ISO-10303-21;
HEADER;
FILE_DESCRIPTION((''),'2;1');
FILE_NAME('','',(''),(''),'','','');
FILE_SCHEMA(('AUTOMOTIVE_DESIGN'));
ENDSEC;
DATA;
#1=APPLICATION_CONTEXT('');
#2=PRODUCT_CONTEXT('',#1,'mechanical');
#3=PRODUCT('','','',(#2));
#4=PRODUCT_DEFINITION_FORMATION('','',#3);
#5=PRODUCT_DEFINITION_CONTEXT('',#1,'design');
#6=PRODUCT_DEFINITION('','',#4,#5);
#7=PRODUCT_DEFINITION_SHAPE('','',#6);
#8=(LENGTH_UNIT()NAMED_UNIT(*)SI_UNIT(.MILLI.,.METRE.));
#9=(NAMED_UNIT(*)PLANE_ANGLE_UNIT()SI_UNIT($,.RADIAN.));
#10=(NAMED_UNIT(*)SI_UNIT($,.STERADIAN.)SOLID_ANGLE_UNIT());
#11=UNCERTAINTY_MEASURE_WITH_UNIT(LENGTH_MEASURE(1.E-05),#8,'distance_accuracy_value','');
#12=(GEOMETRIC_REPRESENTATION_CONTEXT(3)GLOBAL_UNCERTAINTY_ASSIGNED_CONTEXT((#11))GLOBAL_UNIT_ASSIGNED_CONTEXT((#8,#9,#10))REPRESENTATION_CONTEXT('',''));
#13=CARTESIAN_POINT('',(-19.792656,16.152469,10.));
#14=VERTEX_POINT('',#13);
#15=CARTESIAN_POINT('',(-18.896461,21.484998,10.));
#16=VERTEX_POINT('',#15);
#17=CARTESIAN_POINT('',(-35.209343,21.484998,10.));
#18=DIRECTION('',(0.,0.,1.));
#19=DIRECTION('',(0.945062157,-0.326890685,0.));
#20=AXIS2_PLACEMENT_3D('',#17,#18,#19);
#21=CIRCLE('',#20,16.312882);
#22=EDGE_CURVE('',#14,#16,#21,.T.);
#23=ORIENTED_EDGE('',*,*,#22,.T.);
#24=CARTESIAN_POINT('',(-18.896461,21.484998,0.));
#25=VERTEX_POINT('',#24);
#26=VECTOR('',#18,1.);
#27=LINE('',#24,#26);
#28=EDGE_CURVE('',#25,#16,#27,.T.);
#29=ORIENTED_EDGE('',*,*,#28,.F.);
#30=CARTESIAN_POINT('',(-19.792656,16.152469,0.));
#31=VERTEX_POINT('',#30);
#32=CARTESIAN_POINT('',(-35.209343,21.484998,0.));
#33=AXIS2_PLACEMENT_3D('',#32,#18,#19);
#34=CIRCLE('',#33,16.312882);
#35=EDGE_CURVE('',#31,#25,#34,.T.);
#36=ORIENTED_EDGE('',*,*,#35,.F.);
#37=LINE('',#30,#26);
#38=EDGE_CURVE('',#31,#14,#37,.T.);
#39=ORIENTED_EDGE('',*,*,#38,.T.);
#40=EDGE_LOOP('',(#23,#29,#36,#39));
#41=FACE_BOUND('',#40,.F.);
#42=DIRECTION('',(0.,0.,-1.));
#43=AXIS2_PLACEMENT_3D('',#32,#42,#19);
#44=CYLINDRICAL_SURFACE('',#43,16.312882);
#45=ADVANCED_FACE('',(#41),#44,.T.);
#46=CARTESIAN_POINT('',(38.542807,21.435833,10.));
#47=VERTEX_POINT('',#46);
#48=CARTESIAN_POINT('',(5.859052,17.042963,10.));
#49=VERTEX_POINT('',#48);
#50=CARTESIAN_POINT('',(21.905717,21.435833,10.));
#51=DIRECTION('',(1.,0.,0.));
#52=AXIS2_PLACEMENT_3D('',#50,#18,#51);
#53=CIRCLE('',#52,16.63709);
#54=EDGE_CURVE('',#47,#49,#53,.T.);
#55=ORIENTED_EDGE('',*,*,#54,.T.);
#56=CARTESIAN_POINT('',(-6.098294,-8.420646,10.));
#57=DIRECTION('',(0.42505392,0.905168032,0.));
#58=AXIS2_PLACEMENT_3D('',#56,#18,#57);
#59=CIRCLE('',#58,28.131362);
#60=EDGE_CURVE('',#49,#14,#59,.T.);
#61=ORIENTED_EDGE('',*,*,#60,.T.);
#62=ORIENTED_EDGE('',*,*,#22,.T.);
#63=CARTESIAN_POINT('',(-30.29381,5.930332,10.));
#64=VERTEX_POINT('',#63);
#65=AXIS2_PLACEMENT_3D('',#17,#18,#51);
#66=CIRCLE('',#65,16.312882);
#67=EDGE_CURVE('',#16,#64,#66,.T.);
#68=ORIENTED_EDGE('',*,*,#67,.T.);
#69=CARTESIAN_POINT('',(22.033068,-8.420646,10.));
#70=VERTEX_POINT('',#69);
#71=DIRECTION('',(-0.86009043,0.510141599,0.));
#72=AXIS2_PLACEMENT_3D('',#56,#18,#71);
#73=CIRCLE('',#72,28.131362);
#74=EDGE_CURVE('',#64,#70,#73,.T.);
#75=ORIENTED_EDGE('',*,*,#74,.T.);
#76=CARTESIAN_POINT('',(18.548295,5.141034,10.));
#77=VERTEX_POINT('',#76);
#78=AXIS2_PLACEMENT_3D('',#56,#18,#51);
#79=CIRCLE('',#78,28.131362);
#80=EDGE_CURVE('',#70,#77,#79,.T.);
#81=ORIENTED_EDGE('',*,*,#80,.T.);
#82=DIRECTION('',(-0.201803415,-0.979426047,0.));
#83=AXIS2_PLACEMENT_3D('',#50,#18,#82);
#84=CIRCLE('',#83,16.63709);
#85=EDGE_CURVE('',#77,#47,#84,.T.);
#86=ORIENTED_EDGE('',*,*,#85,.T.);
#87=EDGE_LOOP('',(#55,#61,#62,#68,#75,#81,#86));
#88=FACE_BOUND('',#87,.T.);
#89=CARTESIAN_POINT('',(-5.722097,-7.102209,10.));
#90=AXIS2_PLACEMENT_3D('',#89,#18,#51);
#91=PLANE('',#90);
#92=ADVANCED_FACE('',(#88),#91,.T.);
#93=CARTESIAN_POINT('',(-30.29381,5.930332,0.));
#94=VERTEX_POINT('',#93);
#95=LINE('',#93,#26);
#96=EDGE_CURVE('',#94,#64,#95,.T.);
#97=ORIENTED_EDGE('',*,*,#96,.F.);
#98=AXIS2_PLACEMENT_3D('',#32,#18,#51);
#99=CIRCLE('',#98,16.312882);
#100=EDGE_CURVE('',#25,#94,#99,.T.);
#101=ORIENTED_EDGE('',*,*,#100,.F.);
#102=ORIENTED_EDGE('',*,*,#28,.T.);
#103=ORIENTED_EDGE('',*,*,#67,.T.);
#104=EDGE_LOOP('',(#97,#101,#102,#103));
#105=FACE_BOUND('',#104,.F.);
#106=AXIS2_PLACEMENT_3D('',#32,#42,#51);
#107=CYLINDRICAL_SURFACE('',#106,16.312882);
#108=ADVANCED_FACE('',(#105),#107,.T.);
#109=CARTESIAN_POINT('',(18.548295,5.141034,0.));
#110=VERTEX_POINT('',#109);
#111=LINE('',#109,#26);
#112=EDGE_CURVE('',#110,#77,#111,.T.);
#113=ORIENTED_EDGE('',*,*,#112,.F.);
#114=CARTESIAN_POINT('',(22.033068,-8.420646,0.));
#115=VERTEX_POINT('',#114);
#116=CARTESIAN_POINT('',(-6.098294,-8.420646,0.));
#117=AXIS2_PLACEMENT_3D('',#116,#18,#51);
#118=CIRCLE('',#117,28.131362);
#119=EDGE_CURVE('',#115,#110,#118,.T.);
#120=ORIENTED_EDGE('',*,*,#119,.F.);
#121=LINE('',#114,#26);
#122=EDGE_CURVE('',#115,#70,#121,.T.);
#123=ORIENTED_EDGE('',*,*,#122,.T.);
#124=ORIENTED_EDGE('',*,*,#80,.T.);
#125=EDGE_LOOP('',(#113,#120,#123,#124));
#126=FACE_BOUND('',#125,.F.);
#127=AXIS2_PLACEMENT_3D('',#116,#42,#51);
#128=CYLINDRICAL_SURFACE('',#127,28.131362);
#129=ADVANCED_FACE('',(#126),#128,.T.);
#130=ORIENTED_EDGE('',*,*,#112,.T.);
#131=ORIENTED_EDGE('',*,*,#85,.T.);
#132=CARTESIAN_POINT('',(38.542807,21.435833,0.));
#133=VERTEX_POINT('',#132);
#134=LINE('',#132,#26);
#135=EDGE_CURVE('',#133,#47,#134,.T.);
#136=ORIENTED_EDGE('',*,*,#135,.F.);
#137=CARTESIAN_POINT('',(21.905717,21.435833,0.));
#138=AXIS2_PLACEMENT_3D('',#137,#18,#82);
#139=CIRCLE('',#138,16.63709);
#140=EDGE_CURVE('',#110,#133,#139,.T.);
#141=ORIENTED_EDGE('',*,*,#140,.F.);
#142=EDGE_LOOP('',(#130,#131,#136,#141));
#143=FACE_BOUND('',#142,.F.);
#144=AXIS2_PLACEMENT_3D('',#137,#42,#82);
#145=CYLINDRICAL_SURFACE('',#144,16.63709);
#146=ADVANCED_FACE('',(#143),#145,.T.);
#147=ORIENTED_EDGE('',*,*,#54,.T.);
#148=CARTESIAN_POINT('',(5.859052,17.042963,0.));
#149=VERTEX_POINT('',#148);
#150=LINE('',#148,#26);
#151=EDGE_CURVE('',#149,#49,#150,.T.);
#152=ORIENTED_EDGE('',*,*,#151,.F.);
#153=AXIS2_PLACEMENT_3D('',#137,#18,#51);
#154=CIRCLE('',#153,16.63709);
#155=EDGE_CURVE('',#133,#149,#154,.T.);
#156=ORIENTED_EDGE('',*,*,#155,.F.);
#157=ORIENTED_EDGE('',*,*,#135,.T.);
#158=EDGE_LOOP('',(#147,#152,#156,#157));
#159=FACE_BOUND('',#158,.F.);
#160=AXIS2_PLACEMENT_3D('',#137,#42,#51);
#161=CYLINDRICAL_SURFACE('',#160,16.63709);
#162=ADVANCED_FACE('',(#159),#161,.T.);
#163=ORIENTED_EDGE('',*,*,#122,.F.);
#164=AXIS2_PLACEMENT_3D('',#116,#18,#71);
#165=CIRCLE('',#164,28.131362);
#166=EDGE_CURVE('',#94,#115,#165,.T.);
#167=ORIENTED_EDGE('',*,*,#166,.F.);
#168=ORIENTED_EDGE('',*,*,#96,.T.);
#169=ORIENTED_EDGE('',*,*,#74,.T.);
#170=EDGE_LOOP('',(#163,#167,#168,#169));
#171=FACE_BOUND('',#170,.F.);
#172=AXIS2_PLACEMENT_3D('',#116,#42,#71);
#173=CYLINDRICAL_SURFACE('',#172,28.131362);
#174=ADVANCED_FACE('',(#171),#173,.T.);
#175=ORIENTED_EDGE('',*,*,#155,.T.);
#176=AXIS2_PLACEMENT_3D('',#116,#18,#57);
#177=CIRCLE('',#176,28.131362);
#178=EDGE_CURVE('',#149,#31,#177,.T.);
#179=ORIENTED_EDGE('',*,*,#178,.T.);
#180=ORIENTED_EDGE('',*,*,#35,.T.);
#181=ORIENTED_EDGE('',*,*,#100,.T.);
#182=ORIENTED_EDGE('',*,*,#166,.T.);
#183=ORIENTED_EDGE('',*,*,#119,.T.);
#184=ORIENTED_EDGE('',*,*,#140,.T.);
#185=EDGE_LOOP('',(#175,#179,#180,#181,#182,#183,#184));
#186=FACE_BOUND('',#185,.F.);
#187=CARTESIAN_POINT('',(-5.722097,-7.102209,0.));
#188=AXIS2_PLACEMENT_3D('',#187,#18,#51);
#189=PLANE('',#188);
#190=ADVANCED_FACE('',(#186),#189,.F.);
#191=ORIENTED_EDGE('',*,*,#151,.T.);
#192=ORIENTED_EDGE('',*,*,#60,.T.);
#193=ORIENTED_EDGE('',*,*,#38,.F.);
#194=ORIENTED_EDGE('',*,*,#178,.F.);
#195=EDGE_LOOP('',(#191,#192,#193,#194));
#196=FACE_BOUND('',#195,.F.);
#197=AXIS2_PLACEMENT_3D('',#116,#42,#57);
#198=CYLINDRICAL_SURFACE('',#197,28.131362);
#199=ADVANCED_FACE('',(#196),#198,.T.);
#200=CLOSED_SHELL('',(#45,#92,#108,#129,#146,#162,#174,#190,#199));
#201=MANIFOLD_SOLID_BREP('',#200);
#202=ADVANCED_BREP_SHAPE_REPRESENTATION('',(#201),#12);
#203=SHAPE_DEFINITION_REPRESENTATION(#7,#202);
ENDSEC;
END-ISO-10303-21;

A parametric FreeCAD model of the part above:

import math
import FreeCAD as App
import Part
import Sketcher
from FreeCAD import Vector

doc = App.newDocument("Part")
params = doc.addObject("Spreadsheet::Sheet", "Params")
for row, (alias, value) in enumerate([
    ("pad1_length", "10 mm"),
], start=1):
    params.set(f"A{row}", alias)
    params.set(f"B{row}", "=" + value)
    params.setAlias(f"B{row}", alias)

body = doc.addObject("PartDesign::Body", "Body")

# Sketch on XY plane
sketch1 = doc.addObject("Sketcher::SketchObject", "Sketch")
body.addObject(sketch1)
sketch1.AttachmentSupport = (doc.XY_Plane, [""])
sketch1.MapMode = "FlatFace"
sketch1.addGeometry([
    Part.ArcOfCircle(Part.Circle(Vector(-6, -8, 0), Vector(0, 0, 1), 28), math.radians(149), math.radians(360)),  # 0
    Part.ArcOfCircle(Part.Circle(Vector(-6, -8, 0), Vector(0, 0, 1), 28), math.radians(0), math.radians(29)),  # 1
    Part.ArcOfCircle(Part.Circle(Vector(22, 21, 0), Vector(0, 0, 1), 17), math.radians(-102), math.radians(0)),  # 2
    Part.ArcOfCircle(Part.Circle(Vector(22, 21, 0), Vector(0, 0, 1), 17), math.radians(0), math.radians(195)),  # 3
    Part.ArcOfCircle(Part.Circle(Vector(-6, -8, 0), Vector(0, 0, 1), 28), math.radians(65), math.radians(119)),  # 4
    Part.ArcOfCircle(Part.Circle(Vector(-35, 21, 0), Vector(0, 0, 1), 16), math.radians(-19.08), math.radians(0)),  # 5
    Part.ArcOfCircle(Part.Circle(Vector(-35, 21, 0), Vector(0, 0, 1), 16), math.radians(0), math.radians(288)),  # 6
], False)
sketch1.addConstraint([
    Sketcher.Constraint("Tangent", 0, 2, 1, 1),
    Sketcher.Constraint("Coincident", 1, 2, 2, 1),
    Sketcher.Constraint("Tangent", 2, 2, 3, 1),
    Sketcher.Constraint("Coincident", 3, 2, 4, 1),
    Sketcher.Constraint("Coincident", 4, 2, 5, 1),
    Sketcher.Constraint("Tangent", 5, 2, 6, 1),
    Sketcher.Constraint("Coincident", 6, 2, 0, 1),
    Sketcher.Constraint("Coincident", 4, 3, 0, 3),
    Sketcher.Constraint("Equal", 0, 1),
    Sketcher.Constraint("Equal", 2, 3),
    Sketcher.Constraint("Equal", 1, 4),
    Sketcher.Constraint("Equal", 5, 6),
    Sketcher.Constraint("Horizontal", 4, 3, 0, 2),
    Sketcher.Constraint("Horizontal", 3, 3, 2, 2),
    Sketcher.Constraint("Horizontal", 6, 3, 5, 2),
    Sketcher.Constraint("Radius", 2, 16.63709),
    Sketcher.Constraint("DistanceY", -1, 1, 5, 3, 21.484998),
    Sketcher.Constraint("Radius", 0, 28.131362),
    Sketcher.Constraint("Radius", 5, 16.312882),
    Sketcher.Constraint("DistanceY", 1, 2, 2, 3, 16.2948),
    Sketcher.Constraint("DistanceX", 1, 3, 2, 2, 44.641102),
    Sketcher.Constraint("DistanceX", -1, 1, 0, 2, 22.033068),
    Sketcher.Constraint("DistanceY", -1, 1, 4, 2, 16.152469),
    Sketcher.Constraint("DistanceX", 5, 2, -1, 1, 18.896461),
])
pad1 = doc.addObject("PartDesign::Pad", "Pad")
body.addObject(pad1)
pad1.Profile = sketch1
pad1.setExpression("Length", "Params.pad1_length")

doc.recompute()
